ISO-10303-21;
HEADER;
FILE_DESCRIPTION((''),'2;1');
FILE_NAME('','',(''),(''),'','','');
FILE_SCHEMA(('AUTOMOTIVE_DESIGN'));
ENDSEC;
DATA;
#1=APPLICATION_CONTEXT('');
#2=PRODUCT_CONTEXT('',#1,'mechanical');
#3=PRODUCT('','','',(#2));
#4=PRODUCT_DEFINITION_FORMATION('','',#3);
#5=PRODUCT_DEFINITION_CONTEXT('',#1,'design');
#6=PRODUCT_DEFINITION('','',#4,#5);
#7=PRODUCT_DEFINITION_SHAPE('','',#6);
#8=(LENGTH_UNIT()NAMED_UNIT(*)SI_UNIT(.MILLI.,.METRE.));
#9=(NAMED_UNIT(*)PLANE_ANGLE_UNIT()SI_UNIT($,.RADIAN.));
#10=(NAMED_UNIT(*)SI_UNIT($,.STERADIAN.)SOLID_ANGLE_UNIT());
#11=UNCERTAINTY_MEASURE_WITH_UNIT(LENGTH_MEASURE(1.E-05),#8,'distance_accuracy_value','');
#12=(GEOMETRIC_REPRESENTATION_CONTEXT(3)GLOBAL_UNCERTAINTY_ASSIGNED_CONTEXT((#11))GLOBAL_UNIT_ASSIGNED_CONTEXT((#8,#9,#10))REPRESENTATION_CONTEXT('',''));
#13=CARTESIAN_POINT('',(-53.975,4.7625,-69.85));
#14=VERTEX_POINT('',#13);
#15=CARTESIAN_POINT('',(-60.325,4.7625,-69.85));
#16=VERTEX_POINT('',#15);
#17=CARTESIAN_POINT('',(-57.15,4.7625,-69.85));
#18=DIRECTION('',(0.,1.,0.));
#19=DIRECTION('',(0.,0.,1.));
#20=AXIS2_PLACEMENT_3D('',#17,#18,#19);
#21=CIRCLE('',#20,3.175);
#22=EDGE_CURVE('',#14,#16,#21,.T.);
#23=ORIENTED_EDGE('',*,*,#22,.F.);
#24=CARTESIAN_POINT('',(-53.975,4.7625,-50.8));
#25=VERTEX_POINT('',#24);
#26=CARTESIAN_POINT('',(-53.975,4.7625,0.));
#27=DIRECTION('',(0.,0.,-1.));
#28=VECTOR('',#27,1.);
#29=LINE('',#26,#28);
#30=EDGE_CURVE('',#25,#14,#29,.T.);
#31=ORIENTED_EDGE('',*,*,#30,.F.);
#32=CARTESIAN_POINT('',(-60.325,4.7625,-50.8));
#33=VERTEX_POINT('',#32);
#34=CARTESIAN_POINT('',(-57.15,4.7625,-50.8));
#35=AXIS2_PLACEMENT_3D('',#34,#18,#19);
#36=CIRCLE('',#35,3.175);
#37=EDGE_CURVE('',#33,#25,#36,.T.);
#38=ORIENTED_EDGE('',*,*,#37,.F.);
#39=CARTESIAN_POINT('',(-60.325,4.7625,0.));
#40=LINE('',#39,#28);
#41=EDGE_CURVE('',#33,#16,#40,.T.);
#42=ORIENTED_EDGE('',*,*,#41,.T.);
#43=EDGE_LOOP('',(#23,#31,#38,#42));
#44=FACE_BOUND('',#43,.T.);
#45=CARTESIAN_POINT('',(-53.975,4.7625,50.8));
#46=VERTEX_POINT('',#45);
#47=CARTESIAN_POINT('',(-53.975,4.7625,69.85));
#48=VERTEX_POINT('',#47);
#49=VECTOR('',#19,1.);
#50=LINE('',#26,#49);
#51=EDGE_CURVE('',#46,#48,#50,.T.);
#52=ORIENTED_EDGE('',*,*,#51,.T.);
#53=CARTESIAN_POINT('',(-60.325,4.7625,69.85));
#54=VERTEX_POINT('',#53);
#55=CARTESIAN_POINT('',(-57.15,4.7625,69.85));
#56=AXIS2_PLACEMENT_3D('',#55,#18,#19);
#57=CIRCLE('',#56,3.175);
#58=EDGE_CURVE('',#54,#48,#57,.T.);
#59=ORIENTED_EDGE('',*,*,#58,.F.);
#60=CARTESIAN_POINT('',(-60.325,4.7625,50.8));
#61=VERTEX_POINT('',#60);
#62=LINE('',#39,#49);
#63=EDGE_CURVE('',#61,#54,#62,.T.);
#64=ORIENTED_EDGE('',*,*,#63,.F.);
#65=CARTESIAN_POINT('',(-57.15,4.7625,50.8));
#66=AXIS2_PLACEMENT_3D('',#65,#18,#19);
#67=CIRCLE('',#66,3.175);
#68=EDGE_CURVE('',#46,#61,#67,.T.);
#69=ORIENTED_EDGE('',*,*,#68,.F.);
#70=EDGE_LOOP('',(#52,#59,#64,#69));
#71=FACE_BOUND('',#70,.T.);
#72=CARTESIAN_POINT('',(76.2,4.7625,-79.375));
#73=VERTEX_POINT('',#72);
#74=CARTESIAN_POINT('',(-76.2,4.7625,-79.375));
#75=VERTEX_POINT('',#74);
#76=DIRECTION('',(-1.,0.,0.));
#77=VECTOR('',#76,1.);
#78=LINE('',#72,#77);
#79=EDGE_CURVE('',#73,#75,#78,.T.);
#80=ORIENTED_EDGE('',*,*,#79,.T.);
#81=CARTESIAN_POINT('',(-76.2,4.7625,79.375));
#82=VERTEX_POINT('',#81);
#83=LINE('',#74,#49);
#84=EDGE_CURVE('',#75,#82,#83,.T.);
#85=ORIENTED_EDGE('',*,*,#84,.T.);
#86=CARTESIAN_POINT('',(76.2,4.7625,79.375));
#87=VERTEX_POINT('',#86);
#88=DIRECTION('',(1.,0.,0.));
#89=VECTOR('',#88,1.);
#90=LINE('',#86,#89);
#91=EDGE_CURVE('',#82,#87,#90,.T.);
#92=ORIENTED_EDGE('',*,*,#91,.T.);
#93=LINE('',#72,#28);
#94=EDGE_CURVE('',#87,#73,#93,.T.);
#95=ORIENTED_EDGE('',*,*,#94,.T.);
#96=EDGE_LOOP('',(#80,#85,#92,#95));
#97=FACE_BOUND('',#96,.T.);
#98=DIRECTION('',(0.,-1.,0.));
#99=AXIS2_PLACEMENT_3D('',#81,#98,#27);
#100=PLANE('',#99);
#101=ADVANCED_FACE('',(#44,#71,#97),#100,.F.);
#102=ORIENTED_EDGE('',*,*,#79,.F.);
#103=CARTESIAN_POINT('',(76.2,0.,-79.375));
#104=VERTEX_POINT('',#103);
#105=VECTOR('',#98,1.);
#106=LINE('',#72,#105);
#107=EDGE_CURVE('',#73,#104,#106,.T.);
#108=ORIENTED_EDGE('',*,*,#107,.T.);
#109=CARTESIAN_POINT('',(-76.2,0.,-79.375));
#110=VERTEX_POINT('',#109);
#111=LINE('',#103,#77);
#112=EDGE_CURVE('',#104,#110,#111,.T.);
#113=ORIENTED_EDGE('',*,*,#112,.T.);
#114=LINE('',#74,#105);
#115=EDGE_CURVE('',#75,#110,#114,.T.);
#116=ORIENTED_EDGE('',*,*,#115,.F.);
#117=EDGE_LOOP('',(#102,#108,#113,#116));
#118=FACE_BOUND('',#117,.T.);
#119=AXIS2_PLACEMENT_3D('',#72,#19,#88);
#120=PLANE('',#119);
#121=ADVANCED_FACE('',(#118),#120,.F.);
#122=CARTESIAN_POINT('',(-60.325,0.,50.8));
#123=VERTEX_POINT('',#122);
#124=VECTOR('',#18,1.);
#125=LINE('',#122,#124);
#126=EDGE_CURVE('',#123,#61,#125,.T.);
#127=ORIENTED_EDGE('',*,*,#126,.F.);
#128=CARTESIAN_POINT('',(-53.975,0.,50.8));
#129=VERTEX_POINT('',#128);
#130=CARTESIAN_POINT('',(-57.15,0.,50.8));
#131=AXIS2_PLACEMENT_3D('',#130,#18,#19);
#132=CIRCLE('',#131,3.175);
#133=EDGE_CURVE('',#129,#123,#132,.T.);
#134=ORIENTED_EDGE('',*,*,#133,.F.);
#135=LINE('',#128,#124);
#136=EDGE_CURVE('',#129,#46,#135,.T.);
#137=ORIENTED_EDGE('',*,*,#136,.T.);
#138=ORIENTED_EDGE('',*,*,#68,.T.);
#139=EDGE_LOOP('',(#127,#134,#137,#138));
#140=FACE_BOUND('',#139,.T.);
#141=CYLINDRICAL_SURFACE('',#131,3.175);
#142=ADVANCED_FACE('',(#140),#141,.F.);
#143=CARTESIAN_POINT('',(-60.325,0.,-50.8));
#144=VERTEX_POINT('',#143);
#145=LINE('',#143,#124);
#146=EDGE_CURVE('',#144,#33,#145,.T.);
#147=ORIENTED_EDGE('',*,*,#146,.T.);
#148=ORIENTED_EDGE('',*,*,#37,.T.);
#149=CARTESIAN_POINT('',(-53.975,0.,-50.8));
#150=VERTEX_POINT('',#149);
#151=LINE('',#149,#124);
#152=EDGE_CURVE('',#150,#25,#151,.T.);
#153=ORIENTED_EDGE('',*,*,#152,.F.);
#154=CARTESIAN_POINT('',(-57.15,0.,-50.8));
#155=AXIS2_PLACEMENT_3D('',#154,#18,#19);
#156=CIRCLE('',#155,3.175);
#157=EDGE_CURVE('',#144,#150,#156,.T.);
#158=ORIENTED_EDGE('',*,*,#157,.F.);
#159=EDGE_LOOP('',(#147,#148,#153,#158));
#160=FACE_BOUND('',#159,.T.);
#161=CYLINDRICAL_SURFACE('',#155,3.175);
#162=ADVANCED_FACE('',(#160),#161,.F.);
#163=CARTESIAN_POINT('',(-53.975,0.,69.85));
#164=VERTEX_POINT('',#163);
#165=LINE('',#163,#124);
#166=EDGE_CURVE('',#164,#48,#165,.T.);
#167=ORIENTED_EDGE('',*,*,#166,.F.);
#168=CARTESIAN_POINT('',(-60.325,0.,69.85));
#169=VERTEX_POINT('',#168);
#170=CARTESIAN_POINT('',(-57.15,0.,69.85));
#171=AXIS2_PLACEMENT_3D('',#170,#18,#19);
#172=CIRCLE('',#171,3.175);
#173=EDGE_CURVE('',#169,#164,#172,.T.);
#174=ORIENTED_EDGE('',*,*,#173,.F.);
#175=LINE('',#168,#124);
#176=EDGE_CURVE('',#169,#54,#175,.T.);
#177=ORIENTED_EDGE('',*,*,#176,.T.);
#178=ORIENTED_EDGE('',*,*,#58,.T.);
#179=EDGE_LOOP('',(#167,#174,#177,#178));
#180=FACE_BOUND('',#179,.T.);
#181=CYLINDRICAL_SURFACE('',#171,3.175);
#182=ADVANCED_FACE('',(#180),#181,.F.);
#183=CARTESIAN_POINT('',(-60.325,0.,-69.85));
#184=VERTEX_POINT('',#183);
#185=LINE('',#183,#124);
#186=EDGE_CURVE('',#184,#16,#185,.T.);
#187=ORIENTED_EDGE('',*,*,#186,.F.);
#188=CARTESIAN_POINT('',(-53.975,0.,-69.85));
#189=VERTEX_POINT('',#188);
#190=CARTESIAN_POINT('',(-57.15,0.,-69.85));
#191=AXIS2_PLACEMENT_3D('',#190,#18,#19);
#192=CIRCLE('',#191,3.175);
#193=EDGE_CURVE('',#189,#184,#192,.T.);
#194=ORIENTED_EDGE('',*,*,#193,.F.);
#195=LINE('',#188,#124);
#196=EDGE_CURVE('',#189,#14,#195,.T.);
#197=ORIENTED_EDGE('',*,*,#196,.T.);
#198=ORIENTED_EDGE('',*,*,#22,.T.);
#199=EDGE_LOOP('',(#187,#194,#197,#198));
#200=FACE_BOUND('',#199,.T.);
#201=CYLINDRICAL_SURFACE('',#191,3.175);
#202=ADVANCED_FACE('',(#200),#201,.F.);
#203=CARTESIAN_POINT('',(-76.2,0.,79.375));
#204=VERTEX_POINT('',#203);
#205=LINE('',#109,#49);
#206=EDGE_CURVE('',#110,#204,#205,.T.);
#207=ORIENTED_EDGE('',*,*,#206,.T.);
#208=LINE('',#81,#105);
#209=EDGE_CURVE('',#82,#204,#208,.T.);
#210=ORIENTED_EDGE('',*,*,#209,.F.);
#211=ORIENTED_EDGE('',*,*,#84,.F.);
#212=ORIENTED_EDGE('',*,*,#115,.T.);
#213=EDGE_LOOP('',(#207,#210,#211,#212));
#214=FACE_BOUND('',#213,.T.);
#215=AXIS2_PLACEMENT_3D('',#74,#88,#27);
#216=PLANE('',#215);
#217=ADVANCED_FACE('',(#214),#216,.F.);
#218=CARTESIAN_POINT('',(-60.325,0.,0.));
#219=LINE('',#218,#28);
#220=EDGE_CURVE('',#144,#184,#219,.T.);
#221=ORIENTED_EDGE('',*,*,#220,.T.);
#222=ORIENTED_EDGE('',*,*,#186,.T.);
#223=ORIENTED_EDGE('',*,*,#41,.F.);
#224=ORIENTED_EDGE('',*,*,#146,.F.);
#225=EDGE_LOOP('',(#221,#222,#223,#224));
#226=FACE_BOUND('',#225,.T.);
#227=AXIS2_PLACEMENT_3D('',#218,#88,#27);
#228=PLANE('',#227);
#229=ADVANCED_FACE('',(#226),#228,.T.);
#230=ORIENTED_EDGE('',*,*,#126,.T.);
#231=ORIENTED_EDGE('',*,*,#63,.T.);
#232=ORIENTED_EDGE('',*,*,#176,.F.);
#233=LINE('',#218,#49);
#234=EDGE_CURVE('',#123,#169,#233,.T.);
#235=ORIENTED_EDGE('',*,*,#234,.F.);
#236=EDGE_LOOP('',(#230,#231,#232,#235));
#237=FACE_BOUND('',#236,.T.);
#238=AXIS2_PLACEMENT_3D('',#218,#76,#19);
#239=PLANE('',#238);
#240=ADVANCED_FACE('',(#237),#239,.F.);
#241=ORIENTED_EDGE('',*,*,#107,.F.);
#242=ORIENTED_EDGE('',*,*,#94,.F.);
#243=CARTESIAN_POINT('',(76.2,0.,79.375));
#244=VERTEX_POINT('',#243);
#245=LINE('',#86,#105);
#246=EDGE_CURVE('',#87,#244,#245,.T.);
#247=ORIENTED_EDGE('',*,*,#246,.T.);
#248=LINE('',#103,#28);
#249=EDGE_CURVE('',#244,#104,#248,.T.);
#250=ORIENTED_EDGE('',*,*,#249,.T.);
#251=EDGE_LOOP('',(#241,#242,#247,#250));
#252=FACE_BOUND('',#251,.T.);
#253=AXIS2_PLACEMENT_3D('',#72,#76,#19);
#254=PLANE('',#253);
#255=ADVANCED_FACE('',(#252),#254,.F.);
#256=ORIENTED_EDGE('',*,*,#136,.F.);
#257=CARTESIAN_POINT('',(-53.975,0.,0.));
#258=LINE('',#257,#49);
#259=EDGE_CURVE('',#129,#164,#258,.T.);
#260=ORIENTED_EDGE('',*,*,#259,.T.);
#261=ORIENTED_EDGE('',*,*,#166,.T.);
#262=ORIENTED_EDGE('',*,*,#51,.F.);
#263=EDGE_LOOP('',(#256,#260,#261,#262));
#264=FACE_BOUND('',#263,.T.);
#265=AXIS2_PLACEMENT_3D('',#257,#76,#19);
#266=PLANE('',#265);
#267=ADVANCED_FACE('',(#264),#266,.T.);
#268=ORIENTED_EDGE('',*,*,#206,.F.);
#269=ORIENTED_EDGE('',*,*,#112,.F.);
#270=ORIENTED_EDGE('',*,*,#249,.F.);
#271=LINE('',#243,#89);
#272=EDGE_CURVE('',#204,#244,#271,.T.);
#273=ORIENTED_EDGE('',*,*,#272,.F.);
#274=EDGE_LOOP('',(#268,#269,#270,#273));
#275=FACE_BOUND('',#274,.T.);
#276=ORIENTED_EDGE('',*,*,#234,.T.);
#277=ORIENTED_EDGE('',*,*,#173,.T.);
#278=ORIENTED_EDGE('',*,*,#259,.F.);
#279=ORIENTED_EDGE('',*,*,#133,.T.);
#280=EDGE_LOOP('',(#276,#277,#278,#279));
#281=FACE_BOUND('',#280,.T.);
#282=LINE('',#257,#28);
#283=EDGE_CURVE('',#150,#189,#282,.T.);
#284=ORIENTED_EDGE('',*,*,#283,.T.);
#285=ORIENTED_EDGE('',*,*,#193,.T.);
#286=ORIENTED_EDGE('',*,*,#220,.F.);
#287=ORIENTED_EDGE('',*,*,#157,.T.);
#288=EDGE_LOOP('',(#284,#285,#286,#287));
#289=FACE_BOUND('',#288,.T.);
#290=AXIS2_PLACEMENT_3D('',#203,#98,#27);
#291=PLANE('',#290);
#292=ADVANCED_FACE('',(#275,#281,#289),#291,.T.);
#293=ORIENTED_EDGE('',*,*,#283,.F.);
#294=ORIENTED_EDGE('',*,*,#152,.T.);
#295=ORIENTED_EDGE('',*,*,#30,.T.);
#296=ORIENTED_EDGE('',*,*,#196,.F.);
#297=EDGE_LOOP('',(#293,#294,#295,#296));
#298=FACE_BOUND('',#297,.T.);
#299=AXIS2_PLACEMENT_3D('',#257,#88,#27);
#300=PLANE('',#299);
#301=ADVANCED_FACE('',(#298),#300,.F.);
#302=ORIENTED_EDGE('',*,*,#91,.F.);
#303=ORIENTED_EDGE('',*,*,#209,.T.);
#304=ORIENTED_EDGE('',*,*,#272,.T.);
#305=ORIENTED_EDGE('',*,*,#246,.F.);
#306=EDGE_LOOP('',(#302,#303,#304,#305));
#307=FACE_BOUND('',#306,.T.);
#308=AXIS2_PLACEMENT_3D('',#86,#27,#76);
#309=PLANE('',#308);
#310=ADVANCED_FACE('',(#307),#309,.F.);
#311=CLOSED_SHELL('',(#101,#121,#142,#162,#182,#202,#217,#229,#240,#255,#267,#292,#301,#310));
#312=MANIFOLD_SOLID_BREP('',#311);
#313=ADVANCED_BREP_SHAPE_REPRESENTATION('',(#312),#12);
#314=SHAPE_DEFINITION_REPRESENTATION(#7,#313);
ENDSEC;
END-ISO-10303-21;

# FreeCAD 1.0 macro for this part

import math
import FreeCAD as App
import Part
import Sketcher
Q = App.Units.Quantity


def add_polygon(sketch, points):
    """Adds a closed chain of lines whose ends are joined by coincident constraints."""
    first, n = sketch.GeometryCount, len(points)
    for a, b in zip(points, points[1:] + points[:1]):
        sketch.addGeometry(Part.LineSegment(App.Vector(*a, 0), App.Vector(*b, 0)), False)
    for i in range(n):
        sketch.addConstraint(Sketcher.Constraint("Coincident", first + i, 2, first + (i + 1) % n, 1))

doc = App.newDocument("Part")
body = doc.addObject("PartDesign::Body", "Body")

# Sketch on XZ plane
sketch1 = doc.addObject("Sketcher::SketchObject", "Sketch")
body.addObject(sketch1)
sketch1.AttachmentSupport = (doc.XZ_Plane, [""])
sketch1.MapMode = "FlatFace"
add_polygon(sketch1, [(-76, -79), (-76, 79), (76, 79), (76, -79)])  # lines 0-3
sketch1.addConstraint(Sketcher.Constraint("Vertical", 0))
sketch1.addConstraint(Sketcher.Constraint("Horizontal", 1))
sketch1.addConstraint(Sketcher.Constraint("Vertical", 2))
sketch1.addConstraint(Sketcher.Constraint("Horizontal", 3))
sketch1.addConstraint(Sketcher.Constraint("Symmetric", 0, 2, 2, 2, -1, 1))
sketch1.addConstraint(Sketcher.Constraint("DistanceX", 1, 1, 1, 2, Q("6 in")))
sketch1.addConstraint(Sketcher.Constraint("DistanceY", 0, 1, 0, 2, Q("6.25 in")))
pad1 = doc.addObject("PartDesign::Pad", "Pad")
body.addObject(pad1)
pad1.Profile = sketch1
pad1.Length = Q("0.1875 in")
pad1.Reversed = True

# Sketch on XZ plane
sketch2 = doc.addObject("Sketcher::SketchObject", "Sketch001")
body.addObject(sketch2)
sketch2.AttachmentSupport = (doc.XZ_Plane, [""])
sketch2.MapMode = "FlatFace"
sketch2.AttachmentOffset = App.Placement(App.Vector(0, 0, -0.1875 * 25.4), App.Rotation())
sketch2.addGeometry(Part.LineSegment(App.Vector(-54, -50.8, 0), App.Vector(-54, -69.8, 0)), False)
sketch2.addGeometry(Part.ArcOfCircle(Part.Circle(App.Vector(-57.1, -69.8, 0), App.Vector(0, 0, 1), 3.2), math.radians(180), math.radians(360)), False)
sketch2.addGeometry(Part.LineSegment(App.Vector(-60.3, -69.8, 0), App.Vector(-60.3, -50.8, 0)), False)
sketch2.addGeometry(Part.ArcOfCircle(Part.Circle(App.Vector(-57.1, -50.8, 0), App.Vector(0, 0, 1), 3.2), math.radians(0), math.radians(180)), False)
sketch2.addGeometry(Part.LineSegment(App.Vector(-60.3, 50.8, 0), App.Vector(-60.3, 69.8, 0)), False)
sketch2.addGeometry(Part.ArcOfCircle(Part.Circle(App.Vector(-57.1, 69.8, 0), App.Vector(0, 0, 1), 3.2), math.radians(0), math.radians(180)), False)
sketch2.addGeometry(Part.LineSegment(App.Vector(-54, 69.8, 0), App.Vector(-54, 50.8, 0)), False)
sketch2.addGeometry(Part.ArcOfCircle(Part.Circle(App.Vector(-57.1, 50.8, 0), App.Vector(0, 0, 1), 3.2), math.radians(180), math.radians(360)), False)
sketch2.addConstraint(Sketcher.Constraint("Tangent", 0, 2, 1, 2))
sketch2.addConstraint(Sketcher.Constraint("Tangent", 1, 1, 2, 1))
sketch2.addConstraint(Sketcher.Constraint("Tangent", 2, 2, 3, 2))
sketch2.addConstraint(Sketcher.Constraint("Tangent", 3, 1, 0, 1))
sketch2.addConstraint(Sketcher.Constraint("Tangent", 4, 2, 5, 2))
sketch2.addConstraint(Sketcher.Constraint("Tangent", 5, 1, 6, 1))
sketch2.addConstraint(Sketcher.Constraint("Tangent", 6, 2, 7, 2))
sketch2.addConstraint(Sketcher.Constraint("Tangent", 7, 1, 4, 1))
sketch2.addConstraint(Sketcher.Constraint("Vertical", 0))
sketch2.addConstraint(Sketcher.Constraint("Vertical", 2))
sketch2.addConstraint(Sketcher.Constraint("Vertical", 4))
sketch2.addConstraint(Sketcher.Constraint("Vertical", 6))
sketch2.addConstraint(Sketcher.Constraint("Equal", 3, 5))
sketch2.addConstraint(Sketcher.Constraint("Symmetric", 1, 3, 5, 3, -1))
sketch2.addConstraint(Sketcher.Constraint("Equal", 2, 4))
sketch2.addConstraint(Sketcher.Constraint("DistanceY", 3, 3, -1, 1, Q("2 in")))
sketch2.addConstraint(Sketcher.Constraint("Radius", 1, Q("0.125 in")))
sketch2.addConstraint(Sketcher.Constraint("DistanceY", 0, 2, 0, 1, Q("0.75 in")))
sketch2.addConstraint(Sketcher.Constraint("DistanceX", 1, 3, -1, 1, Q("2.25 in")))
pocket1 = doc.addObject("PartDesign::Pocket", "Pocket")
body.addObject(pocket1)
pocket1.Profile = sketch2
pocket1.Type = "ThroughAll"
pocket1.Reversed = True

doc.recompute()
